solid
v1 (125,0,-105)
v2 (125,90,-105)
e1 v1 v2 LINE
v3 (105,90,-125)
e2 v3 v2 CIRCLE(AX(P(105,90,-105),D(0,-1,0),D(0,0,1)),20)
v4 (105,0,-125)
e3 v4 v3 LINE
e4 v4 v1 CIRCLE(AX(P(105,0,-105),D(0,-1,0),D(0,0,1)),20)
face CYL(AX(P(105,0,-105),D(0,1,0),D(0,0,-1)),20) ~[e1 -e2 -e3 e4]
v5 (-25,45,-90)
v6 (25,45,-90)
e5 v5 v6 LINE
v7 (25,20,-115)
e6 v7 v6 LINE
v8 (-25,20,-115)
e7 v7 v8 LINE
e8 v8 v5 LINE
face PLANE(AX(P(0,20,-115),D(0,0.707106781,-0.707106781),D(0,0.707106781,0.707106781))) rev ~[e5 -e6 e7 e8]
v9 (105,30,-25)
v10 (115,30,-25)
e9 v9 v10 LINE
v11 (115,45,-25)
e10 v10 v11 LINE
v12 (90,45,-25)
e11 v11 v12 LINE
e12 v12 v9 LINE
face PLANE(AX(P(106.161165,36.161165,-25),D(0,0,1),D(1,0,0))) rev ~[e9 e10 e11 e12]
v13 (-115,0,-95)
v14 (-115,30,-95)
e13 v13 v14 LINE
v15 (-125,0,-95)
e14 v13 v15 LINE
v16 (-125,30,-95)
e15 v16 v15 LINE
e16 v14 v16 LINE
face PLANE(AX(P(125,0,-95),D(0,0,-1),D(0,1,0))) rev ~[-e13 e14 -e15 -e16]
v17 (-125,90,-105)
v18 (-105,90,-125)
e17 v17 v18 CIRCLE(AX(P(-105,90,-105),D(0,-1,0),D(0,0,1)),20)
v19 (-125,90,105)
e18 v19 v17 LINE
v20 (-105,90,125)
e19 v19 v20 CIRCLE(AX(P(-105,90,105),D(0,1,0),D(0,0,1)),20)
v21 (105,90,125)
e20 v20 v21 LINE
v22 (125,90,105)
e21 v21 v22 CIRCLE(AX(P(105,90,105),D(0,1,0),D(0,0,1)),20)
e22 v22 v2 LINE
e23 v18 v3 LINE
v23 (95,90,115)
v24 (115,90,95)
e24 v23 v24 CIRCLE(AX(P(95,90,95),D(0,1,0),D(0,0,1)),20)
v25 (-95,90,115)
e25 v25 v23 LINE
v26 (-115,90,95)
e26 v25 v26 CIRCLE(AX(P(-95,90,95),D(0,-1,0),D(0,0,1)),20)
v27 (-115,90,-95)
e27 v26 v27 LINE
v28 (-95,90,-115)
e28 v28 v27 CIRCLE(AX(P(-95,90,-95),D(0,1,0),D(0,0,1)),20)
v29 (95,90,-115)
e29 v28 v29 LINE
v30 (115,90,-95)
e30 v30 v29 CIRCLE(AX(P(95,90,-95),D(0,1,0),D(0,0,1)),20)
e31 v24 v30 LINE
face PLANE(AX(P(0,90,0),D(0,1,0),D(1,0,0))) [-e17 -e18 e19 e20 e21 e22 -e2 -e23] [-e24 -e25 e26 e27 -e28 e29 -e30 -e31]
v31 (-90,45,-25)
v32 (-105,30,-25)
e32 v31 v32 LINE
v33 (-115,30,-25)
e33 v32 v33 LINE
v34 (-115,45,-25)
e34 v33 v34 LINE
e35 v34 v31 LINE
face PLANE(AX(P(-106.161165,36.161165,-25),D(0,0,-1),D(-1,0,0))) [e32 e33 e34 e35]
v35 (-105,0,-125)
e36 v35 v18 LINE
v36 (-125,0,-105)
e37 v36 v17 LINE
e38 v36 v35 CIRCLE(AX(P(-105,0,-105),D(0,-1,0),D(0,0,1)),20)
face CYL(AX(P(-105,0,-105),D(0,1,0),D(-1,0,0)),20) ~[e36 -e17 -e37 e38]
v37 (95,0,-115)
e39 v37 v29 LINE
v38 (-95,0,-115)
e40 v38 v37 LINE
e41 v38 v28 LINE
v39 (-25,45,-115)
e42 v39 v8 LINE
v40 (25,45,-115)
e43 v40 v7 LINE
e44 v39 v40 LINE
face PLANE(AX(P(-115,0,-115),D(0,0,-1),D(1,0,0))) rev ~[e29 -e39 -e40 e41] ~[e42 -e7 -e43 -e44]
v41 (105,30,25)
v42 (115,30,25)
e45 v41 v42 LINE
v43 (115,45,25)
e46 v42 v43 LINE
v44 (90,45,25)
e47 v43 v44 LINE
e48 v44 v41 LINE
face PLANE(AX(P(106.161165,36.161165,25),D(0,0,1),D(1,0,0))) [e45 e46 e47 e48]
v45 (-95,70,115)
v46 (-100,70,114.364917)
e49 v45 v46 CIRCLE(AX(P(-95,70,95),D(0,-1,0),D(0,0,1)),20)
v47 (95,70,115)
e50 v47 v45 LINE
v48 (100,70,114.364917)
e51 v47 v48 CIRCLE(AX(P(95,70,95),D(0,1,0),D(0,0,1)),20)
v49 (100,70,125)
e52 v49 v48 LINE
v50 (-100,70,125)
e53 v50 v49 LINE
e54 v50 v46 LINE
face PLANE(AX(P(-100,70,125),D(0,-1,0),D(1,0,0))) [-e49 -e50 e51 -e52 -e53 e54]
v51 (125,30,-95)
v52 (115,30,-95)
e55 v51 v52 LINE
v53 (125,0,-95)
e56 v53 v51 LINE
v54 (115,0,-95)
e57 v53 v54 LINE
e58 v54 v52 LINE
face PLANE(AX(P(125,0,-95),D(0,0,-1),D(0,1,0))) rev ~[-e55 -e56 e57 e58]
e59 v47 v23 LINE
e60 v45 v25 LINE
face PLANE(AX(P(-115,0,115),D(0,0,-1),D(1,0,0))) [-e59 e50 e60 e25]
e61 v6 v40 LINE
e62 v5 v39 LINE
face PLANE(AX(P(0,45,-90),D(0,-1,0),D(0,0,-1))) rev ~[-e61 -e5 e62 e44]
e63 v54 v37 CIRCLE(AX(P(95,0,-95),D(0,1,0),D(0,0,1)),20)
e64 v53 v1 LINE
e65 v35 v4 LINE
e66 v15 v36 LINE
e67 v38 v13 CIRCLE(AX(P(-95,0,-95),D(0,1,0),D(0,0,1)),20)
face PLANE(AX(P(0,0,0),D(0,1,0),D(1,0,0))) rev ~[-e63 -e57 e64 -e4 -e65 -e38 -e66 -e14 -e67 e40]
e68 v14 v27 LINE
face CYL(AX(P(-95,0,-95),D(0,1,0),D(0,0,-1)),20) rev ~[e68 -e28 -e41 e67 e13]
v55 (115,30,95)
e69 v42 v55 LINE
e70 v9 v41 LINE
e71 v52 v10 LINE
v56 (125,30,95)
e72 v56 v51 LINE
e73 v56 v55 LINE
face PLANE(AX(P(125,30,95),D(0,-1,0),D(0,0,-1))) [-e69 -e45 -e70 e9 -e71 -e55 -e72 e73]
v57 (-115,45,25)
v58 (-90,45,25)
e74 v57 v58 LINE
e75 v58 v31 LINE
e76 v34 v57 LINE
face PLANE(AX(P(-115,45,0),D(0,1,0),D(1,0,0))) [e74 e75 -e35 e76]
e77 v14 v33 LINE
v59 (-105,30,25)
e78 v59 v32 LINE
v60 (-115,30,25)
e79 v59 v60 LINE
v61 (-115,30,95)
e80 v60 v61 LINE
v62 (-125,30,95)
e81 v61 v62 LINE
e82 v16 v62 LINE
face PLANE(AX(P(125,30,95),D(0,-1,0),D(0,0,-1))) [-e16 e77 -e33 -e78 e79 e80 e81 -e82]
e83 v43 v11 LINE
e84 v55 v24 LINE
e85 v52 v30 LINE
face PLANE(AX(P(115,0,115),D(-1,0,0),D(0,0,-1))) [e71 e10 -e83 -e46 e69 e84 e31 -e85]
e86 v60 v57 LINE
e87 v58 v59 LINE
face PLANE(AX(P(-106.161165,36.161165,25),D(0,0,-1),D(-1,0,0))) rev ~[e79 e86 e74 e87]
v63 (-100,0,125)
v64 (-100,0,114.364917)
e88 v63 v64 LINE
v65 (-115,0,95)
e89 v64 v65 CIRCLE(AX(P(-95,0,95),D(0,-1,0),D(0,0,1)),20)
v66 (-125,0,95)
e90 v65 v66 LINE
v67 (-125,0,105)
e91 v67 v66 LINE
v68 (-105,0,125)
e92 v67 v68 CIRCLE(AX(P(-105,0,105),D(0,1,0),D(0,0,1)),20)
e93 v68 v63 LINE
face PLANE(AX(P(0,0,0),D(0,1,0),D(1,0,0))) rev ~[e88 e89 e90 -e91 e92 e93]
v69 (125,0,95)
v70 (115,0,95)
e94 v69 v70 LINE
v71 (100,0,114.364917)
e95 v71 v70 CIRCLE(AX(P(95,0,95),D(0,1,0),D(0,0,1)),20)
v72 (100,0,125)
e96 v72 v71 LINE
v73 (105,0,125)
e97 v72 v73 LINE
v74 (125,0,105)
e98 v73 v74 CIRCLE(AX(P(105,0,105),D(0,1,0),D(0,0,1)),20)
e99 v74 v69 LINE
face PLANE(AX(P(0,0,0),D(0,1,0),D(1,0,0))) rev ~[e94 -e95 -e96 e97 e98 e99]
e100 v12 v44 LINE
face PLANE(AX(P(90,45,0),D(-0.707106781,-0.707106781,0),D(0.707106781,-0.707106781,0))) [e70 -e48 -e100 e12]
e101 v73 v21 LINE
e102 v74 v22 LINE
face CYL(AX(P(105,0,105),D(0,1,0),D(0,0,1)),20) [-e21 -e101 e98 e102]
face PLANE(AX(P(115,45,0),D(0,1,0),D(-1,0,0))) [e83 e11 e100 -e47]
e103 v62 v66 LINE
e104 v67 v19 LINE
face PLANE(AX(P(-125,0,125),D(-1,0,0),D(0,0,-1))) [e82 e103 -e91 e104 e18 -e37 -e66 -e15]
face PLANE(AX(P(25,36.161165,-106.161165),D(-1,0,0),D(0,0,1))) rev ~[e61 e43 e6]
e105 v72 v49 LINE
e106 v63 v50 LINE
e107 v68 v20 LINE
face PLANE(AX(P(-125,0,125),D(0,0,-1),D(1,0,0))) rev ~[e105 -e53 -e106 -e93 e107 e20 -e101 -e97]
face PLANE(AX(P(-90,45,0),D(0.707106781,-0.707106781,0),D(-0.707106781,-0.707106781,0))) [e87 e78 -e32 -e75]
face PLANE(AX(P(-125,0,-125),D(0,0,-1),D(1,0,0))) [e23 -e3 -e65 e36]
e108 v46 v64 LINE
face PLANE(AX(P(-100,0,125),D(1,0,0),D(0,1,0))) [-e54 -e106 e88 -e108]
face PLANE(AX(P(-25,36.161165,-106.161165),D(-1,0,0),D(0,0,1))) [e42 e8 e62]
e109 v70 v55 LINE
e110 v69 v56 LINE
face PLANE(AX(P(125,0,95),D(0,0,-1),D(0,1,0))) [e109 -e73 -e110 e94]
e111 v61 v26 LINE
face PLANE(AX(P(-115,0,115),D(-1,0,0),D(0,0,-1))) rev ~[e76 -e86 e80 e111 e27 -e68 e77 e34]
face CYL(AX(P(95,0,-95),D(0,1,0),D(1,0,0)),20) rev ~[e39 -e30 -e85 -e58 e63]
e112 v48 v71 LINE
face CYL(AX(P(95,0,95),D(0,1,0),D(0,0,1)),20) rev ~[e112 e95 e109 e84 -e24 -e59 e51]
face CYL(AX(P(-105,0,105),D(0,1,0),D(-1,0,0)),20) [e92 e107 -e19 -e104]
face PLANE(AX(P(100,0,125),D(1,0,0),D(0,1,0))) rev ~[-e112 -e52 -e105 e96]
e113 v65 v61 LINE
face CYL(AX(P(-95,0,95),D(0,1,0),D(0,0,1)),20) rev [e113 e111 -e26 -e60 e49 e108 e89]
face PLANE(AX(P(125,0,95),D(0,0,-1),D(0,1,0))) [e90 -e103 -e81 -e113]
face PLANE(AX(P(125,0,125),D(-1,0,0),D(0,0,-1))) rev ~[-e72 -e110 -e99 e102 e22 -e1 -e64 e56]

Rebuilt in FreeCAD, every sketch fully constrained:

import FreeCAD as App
import Part
import Sketcher


def edges_at(feature, points):
    """Names of the edges that pass closest to the given points."""
    edges = feature.Shape.Edges
    near = lambda p: min(range(len(edges)), key=lambda i: edges[i].distToShape(Part.Vertex(*p))[0])
    return sorted({f"Edge{near(p) + 1}" for p in points})


def add_polygon(sketch, points):
    """Adds a closed chain of lines whose ends are joined by coincident constraints."""
    first, n = sketch.GeometryCount, len(points)
    for a, b in zip(points, points[1:] + points[:1]):
        sketch.addGeometry(Part.LineSegment(App.Vector(*a, 0), App.Vector(*b, 0)), False)
    for i in range(n):
        sketch.addConstraint(Sketcher.Constraint("Coincident", first + i, 2, first + (i + 1) % n, 1))

doc = App.newDocument("Part")
body = doc.addObject("PartDesign::Body", "Body")

sketch1 = doc.addObject("Sketcher::SketchObject", "Sketch")
body.addObject(sketch1)
sketch1.AttachmentSupport = (doc.XZ_Plane, [""])
sketch1.MapMode = "FlatFace"
add_polygon(sketch1, [(-125, -125), (-125, 125), (125, 125), (125, -125)])
add_polygon(sketch1, [(115, 115), (-115, 115), (-115, -115), (115, -115)])
sketch1.addConstraint([
    Sketcher.Constraint("Vertical", 0),
    Sketcher.Constraint("Horizontal", 1),
    Sketcher.Constraint("Vertical", 2),
    Sketcher.Constraint("Horizontal", 3),
    Sketcher.Constraint("Horizontal", 4),
    Sketcher.Constraint("Vertical", 5),
    Sketcher.Constraint("Horizontal", 6),
    Sketcher.Constraint("Vertical", 7),
    Sketcher.Constraint("Symmetric", 0, 2, 2, 2, -1, 1),
    Sketcher.Constraint("Symmetric", 4, 2, 6, 2, -1, 1),
    Sketcher.Constraint("Equal", 3, 0),
    Sketcher.Constraint("Equal", 6, 5),
    Sketcher.Constraint("DistanceX", 1, 1, 1, 2, 250.0),
    Sketcher.Constraint("DistanceX", 4, 2, 4, 1, 230.0),
])
pad1 = doc.addObject("PartDesign::Pad", "Pad")
body.addObject(pad1)
pad1.Profile = sketch1
pad1.Length = 90
pad1.Reversed = True

sketch2 = doc.addObject("Sketcher::SketchObject", "Sketch001")
body.addObject(sketch2)
sketch2.AttachmentSupport = (doc.XY_Plane, [""])
sketch2.MapMode = "FlatFace"
sketch2.AttachmentOffset = App.Placement(App.Vector(0, 0, 125), App.Rotation())
add_polygon(sketch2, [(-100, 70), (-100, 0), (100, 0), (100, 70)])
sketch2.addConstraint([
    Sketcher.Constraint("Vertical", 0),
    Sketcher.Constraint("Horizontal", 1),
    Sketcher.Constraint("Vertical", 2),
    Sketcher.Constraint("Horizontal", 3),
    Sketcher.Constraint("Symmetric", 0, 2, 1, 2, -1, 1),
    Sketcher.Constraint("DistanceX", 1, 1, 1, 2, 200.0),
    Sketcher.Constraint("DistanceY", 0, 2, 0, 1, 70.0),
])
pocket1 = doc.addObject("PartDesign::Pocket", "Pocket")
body.addObject(pocket1)
pocket1.Profile = sketch2
pocket1.Length = 50
doc.recompute()

fillet = doc.addObject("PartDesign::Fillet", "Fillet")
body.addObject(fillet)
fillet.Base = (pocket1, edges_at(pocket1, [
    (-115, 45, 115),
    (115, 45, 115),
    (115, 45, -115),
    (-115, 45, -115),
    (-125, 45, 125),
    (125, 45, 125),
    (125, 45, -125),
    (-125, 45, -125),
]))
fillet.Radius = 20

sketch3 = doc.addObject("Sketcher::SketchObject", "Sketch002")
body.addObject(sketch3)
sketch3.AttachmentSupport = (doc.XY_Plane, [""])
sketch3.MapMode = "FlatFace"
add_polygon(sketch3, [(-90, 45), (-115, 45), (-115, 20)])
add_polygon(sketch3, [(115, 45), (90, 45), (115, 20)])
sketch3.addConstraint([
    Sketcher.Constraint("Horizontal", 0),
    Sketcher.Constraint("Vertical", 1),
    Sketcher.Constraint("Horizontal", 3),
    Sketcher.Constraint("Vertical", 5),
    Sketcher.Constraint("Symmetric", 2, 2, 3, 2, -2),
    Sketcher.Constraint("Symmetric", 1, 2, 4, 2, -2),
    Sketcher.Constraint("Perpendicular", 2, 4),
    Sketcher.Constraint("DistanceX", 0, 2, 0, 1, 25.0),
    Sketcher.Constraint("DistanceX", 0, 2, -1, 1, 115.0),
    Sketcher.Constraint("DistanceY", -1, 1, 0, 2, 45.0),
])
pad2 = doc.addObject("PartDesign::Pad", "Pad001")
body.addObject(pad2)
pad2.Profile = sketch3
pad2.Length = 50
pad2.Midplane = True

sketch4 = doc.addObject("Sketcher::SketchObject", "Sketch003")
body.addObject(sketch4)
sketch4.AttachmentSupport = (doc.YZ_Plane, [""])
sketch4.MapMode = "FlatFace"
add_polygon(sketch4, [(20, -115), (45, -115), (45, -90)])
sketch4.addConstraint([
    Sketcher.Constraint("Horizontal", 0),
    Sketcher.Constraint("Vertical", 1),
    Sketcher.Constraint("Equal", 0, 1),
    Sketcher.Constraint("DistanceX", 0, 1, 0, 2, 25.0),
    Sketcher.Constraint("DistanceX", -1, 1, 0, 2, 45.0),
    Sketcher.Constraint("DistanceY", 0, 2, -1, 1, 115.0),
])
pad3 = doc.addObject("PartDesign::Pad", "Pad002")
body.addObject(pad3)
pad3.Profile = sketch4
pad3.Length = 50
pad3.Midplane = True

sketch5 = doc.addObject("Sketcher::SketchObject", "Sketch004")
body.addObject(sketch5)
sketch5.AttachmentSupport = (doc.YZ_Plane, [""])
sketch5.MapMode = "FlatFace"
sketch5.AttachmentOffset = App.Placement(App.Vector(0, 0, 125), App.Rotation())
add_polygon(sketch5, [(30, 95), (0, 95), (0, -95), (30, -95)])
sketch5.addConstraint([
    Sketcher.Constraint("Horizontal", 0),
    Sketcher.Constraint("Vertical", 1),
    Sketcher.Constraint("Horizontal", 2),
    Sketcher.Constraint("Vertical", 3),
    Sketcher.Constraint("Symmetric", 0, 2, 1, 2, -1, 1),
    Sketcher.Constraint("DistanceX", 0, 2, 0, 1, 30.0),
    Sketcher.Constraint("DistanceY", 1, 2, 1, 1, 190.0),
])
pocket2 = doc.addObject("PartDesign::Pocket", "Pocket001")
body.addObject(pocket2)
pocket2.Profile = sketch5
pocket2.Type = "ThroughAll"

doc.recompute()
